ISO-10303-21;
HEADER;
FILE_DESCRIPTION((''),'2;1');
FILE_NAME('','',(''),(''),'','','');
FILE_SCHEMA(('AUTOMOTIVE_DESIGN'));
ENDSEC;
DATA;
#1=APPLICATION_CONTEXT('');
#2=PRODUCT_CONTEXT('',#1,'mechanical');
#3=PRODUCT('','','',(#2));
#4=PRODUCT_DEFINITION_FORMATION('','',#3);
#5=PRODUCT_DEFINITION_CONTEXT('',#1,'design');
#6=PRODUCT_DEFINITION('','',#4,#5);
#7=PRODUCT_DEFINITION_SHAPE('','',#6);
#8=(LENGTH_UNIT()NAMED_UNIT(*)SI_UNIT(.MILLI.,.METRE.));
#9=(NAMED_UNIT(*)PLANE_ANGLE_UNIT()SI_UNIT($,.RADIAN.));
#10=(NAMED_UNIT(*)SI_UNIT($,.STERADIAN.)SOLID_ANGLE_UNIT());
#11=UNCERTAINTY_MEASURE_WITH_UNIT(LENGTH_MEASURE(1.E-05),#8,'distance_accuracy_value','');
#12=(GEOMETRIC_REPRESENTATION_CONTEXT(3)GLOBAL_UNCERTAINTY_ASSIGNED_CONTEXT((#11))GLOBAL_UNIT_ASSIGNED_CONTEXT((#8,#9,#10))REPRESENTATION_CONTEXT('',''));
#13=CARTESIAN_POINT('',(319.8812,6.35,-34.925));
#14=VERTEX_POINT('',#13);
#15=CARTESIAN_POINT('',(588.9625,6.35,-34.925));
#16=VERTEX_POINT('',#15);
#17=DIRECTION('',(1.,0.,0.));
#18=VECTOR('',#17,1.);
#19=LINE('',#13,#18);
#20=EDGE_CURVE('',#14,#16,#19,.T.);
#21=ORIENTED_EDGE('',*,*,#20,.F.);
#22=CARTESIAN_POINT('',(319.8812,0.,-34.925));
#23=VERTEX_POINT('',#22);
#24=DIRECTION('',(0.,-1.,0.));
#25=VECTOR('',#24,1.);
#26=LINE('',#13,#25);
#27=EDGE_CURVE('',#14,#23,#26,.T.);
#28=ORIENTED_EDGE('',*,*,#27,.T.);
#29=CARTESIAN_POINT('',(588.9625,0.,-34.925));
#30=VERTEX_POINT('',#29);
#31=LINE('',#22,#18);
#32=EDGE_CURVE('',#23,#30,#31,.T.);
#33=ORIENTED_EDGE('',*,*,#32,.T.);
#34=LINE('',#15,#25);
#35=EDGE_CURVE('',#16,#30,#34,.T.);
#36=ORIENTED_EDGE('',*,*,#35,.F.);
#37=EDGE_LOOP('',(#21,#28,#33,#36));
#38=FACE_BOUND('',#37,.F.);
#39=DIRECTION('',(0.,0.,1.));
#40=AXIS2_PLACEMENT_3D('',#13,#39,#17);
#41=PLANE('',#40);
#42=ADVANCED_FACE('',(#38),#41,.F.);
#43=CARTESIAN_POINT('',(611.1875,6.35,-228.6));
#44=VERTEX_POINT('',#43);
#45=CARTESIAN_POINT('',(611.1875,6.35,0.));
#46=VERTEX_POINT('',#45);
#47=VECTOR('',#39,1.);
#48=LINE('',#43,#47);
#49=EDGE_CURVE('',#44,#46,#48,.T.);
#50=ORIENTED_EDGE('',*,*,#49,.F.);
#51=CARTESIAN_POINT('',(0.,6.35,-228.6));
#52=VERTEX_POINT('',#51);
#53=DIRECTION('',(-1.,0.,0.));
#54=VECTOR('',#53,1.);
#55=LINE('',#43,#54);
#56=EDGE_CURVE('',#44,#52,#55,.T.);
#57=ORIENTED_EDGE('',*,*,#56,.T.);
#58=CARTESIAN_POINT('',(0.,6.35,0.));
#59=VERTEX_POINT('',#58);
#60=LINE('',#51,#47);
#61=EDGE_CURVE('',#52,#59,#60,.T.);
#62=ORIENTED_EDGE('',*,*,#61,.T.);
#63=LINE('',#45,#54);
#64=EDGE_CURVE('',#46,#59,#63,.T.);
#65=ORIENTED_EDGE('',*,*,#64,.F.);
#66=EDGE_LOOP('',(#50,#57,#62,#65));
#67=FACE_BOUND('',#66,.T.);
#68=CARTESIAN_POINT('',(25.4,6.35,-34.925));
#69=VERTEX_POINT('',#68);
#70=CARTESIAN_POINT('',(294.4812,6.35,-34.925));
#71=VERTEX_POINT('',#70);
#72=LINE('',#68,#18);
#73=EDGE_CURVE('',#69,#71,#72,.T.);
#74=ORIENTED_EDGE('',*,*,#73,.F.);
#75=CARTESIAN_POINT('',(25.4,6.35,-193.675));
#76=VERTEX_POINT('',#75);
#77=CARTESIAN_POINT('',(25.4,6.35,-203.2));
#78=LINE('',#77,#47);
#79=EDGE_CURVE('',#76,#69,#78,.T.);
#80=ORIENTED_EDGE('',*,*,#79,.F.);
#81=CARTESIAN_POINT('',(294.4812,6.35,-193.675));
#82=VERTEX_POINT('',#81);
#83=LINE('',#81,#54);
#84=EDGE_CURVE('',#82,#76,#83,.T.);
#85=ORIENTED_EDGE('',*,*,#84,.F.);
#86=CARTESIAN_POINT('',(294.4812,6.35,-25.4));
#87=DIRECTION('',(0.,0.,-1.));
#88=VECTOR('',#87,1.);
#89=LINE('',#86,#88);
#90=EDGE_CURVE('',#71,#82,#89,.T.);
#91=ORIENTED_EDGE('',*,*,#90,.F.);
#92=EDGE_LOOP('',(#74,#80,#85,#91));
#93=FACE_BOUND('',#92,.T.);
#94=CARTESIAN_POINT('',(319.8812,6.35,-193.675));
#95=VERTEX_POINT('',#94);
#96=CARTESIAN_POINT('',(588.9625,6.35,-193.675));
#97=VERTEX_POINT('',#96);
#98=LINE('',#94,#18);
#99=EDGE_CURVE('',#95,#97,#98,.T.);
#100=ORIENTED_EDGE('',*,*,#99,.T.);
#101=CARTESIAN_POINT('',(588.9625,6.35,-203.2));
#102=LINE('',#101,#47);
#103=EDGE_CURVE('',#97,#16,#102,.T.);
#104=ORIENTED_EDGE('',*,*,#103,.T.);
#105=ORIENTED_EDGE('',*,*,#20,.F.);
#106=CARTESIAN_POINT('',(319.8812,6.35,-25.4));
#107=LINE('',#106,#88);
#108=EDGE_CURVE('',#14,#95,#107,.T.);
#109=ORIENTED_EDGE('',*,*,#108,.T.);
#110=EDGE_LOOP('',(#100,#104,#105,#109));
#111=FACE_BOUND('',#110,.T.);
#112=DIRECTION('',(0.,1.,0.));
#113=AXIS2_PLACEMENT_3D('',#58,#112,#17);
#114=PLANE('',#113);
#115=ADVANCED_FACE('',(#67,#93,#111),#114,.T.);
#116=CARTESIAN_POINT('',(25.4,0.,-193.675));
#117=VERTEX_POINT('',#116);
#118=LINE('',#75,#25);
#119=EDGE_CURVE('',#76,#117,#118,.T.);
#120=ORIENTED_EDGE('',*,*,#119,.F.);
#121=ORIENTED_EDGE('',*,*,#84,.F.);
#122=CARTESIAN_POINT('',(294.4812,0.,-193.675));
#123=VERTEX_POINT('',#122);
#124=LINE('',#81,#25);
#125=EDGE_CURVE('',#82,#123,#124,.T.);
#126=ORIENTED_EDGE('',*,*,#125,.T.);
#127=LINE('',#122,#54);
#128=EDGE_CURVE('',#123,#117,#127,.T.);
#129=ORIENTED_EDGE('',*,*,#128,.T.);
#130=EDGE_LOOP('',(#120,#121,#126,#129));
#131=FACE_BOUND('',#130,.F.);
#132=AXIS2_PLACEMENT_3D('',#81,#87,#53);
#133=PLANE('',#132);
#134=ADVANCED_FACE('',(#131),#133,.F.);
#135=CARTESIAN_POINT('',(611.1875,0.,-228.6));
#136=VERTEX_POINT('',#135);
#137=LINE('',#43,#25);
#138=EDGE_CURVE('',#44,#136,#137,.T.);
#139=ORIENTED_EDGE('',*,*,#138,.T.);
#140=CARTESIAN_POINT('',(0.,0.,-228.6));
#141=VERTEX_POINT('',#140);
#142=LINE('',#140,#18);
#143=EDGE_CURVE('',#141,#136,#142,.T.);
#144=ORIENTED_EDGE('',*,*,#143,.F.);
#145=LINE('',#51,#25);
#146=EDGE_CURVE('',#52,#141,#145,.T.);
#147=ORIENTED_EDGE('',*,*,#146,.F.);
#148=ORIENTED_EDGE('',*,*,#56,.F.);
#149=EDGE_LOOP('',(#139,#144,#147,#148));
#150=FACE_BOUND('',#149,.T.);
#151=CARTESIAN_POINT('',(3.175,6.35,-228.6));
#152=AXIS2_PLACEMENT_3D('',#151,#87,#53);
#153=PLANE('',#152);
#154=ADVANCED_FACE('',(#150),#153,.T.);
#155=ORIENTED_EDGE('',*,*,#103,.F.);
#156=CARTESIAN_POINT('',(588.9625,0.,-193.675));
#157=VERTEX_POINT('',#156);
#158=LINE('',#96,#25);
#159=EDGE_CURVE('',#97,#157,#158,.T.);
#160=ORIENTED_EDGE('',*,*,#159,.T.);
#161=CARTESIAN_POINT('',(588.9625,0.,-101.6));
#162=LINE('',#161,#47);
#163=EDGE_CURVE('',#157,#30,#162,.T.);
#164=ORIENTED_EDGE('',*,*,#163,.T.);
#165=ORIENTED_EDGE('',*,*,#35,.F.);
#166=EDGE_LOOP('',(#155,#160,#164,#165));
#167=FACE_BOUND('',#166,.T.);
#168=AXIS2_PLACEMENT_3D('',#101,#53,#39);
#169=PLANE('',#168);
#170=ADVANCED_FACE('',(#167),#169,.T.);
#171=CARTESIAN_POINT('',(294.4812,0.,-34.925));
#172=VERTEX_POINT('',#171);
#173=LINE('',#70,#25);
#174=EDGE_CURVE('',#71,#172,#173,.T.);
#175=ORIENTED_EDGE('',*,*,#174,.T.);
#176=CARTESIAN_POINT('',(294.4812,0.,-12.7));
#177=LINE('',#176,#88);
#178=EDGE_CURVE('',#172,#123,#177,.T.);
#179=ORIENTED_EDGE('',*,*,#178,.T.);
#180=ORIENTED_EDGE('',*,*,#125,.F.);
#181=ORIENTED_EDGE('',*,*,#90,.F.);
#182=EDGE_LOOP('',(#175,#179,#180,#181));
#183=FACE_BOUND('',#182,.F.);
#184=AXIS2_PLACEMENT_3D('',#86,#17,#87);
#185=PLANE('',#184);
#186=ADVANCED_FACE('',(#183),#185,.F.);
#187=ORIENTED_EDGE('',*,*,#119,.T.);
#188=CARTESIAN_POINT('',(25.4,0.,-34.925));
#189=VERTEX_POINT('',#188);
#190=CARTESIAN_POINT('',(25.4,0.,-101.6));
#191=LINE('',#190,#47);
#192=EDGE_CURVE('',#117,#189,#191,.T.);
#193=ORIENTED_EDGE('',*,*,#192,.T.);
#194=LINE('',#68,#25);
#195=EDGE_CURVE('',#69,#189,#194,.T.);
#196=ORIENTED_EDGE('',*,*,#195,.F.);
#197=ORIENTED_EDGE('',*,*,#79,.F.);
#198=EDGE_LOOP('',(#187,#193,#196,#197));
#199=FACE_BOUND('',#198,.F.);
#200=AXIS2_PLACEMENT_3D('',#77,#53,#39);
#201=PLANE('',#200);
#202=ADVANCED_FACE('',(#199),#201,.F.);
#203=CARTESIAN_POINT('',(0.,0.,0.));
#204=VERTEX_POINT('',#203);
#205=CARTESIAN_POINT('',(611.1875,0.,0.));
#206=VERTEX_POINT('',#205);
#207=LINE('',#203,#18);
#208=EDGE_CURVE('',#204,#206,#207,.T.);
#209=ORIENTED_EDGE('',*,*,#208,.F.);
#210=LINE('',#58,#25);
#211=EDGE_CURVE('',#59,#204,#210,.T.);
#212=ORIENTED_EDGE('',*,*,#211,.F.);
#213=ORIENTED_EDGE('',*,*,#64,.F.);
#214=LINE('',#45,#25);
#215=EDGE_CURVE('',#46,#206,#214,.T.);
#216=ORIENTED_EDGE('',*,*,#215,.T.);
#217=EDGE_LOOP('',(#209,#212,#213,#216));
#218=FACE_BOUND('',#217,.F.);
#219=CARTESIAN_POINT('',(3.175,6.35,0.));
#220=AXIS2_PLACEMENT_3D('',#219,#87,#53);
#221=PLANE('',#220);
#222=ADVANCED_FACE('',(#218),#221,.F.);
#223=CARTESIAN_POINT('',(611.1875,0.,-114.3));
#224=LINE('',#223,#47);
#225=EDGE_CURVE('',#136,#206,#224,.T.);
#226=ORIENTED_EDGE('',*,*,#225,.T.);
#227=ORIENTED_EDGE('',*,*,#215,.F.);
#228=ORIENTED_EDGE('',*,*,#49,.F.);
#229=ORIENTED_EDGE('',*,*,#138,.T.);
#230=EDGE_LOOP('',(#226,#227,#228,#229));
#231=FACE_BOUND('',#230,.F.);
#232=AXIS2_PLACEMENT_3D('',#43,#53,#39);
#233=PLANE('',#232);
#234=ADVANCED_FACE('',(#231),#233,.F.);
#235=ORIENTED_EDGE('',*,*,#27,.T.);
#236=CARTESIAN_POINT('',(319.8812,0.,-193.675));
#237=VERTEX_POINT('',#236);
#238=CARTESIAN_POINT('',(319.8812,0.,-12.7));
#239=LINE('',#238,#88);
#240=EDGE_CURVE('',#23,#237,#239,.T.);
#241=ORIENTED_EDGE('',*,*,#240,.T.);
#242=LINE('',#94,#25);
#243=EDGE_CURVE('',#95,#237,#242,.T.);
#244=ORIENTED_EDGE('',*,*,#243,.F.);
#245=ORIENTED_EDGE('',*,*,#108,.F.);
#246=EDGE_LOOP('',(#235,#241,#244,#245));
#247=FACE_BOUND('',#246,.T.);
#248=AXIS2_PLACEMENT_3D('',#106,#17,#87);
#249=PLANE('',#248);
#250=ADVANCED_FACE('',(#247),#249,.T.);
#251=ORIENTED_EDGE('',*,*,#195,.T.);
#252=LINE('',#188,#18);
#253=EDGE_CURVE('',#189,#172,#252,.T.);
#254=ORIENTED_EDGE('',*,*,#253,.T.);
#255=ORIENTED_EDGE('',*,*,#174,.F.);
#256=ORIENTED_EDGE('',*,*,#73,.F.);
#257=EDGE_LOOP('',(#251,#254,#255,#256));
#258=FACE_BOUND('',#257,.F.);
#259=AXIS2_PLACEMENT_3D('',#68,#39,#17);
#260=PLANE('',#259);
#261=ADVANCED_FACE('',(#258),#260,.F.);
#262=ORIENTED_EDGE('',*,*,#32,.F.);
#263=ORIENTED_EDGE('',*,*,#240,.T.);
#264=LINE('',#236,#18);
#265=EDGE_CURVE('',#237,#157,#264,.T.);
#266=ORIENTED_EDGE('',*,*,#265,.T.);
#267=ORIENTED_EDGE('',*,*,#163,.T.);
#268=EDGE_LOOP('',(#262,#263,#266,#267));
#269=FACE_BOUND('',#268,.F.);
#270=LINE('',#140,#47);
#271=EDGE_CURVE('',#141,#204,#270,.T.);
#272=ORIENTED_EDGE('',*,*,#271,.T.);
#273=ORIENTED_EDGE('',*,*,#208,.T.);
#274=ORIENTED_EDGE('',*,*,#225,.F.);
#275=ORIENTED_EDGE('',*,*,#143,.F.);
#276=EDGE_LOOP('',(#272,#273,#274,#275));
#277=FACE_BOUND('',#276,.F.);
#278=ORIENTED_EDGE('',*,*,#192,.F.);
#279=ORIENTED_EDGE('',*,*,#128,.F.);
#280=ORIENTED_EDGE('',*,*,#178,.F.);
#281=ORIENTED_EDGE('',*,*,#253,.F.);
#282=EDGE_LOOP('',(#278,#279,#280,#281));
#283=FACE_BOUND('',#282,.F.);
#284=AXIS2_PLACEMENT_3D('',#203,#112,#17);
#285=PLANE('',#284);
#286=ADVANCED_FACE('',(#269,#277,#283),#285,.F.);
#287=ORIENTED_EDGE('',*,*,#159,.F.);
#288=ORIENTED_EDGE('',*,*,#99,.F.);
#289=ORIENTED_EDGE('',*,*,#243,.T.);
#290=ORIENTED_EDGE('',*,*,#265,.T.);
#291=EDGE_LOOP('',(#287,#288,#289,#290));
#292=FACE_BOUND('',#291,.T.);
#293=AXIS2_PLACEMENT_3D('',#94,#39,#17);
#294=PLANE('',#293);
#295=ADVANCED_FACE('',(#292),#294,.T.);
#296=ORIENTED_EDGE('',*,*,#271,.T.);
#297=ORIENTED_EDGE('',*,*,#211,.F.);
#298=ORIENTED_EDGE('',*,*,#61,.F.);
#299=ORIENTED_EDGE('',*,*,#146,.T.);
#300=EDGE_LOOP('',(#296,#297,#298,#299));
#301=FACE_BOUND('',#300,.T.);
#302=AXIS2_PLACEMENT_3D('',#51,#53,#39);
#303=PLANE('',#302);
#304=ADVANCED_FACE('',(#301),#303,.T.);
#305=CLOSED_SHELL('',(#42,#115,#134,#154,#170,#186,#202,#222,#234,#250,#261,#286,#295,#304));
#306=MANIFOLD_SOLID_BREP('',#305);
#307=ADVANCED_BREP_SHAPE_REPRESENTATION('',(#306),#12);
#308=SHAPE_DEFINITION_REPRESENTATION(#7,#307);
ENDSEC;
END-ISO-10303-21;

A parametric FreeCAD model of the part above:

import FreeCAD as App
import Part
import Sketcher

V = App.Vector
Q = App.Units.Quantity

doc = App.newDocument("Part")
body = doc.addObject("PartDesign::Body", "Body")

sketch1 = body.newObject("Sketcher::SketchObject", "Sketch")
sketch1.AttachmentSupport = (doc.getObject("XZ_Plane"), [""])
sketch1.MapMode = "FlatFace"
sketch1.addGeometry([
    Part.LineSegment(V(0, -229, 0), V(0, 0, 0)),
    Part.LineSegment(V(0, 0, 0), V(614, 0, 0)),
    Part.LineSegment(V(614, 0, 0), V(614, -229, 0)),
    Part.LineSegment(V(614, -229, 0), V(0, -229, 0)),
], False)
sketch1.addConstraint([
    Sketcher.Constraint("Coincident", 0, 2, 1, 1),
    Sketcher.Constraint("Coincident", 1, 2, 2, 1),
    Sketcher.Constraint("Coincident", 2, 2, 3, 1),
    Sketcher.Constraint("Coincident", 3, 2, 0, 1),
    Sketcher.Constraint("Vertical", 0),
    Sketcher.Constraint("Horizontal", 1),
    Sketcher.Constraint("Vertical", 2),
    Sketcher.Constraint("Horizontal", 3),
    Sketcher.Constraint("Coincident", 0, 2, -1, 1),
    Sketcher.Constraint("DistanceY", 0, 1, 0, 2, Q("9 in")),
    Sketcher.Constraint("DistanceX", 1, 1, 1, 2, Q("24.1875 in")),
])
pad1 = body.newObject("PartDesign::Pad", "Pad")
pad1.Profile = sketch1
pad1.Length = Q("0.25 in")
pad1.Reversed = True

sketch2 = body.newObject("Sketcher::SketchObject", "Sketch001")
sketch2.AttachmentSupport = (doc.getObject("XZ_Plane"), [""])
sketch2.MapMode = "FlatFace"
sketch2.AttachmentOffset = App.Placement(V(0, 0, -0.25 * 25.4), App.Rotation())
sketch2.addGeometry([
    Part.LineSegment(V(25, -203, 0), V(25, -25, 0)),
    Part.LineSegment(V(25, -25, 0), V(294, -25, 0)),
    Part.LineSegment(V(294, -25, 0), V(294, -203, 0)),
    Part.LineSegment(V(294, -203, 0), V(25, -203, 0)),
    Part.LineSegment(V(320, -25, 0), V(589, -25, 0)),
    Part.LineSegment(V(589, -25, 0), V(589, -203, 0)),
    Part.LineSegment(V(589, -203, 0), V(320, -203, 0)),
    Part.LineSegment(V(320, -203, 0), V(320, -25, 0)),
], False)
sketch2.addConstraint([
    Sketcher.Constraint("Coincident", 0, 2, 1, 1),
    Sketcher.Constraint("Coincident", 1, 2, 2, 1),
    Sketcher.Constraint("Coincident", 2, 2, 3, 1),
    Sketcher.Constraint("Coincident", 3, 2, 0, 1),
    Sketcher.Constraint("Coincident", 4, 2, 5, 1),
    Sketcher.Constraint("Coincident", 5, 2, 6, 1),
    Sketcher.Constraint("Coincident", 6, 2, 7, 1),
    Sketcher.Constraint("Coincident", 7, 2, 4, 1),
    Sketcher.Constraint("Vertical", 0),
    Sketcher.Constraint("Horizontal", 1),
    Sketcher.Constraint("Vertical", 2),
    Sketcher.Constraint("Horizontal", 3),
    Sketcher.Constraint("Horizontal", 4),
    Sketcher.Constraint("Vertical", 5),
    Sketcher.Constraint("Horizontal", 6),
    Sketcher.Constraint("Vertical", 7),
    Sketcher.Constraint("Horizontal", 1, 2, 4, 2),
    Sketcher.Constraint("Horizontal", 3, 2, 5, 2),
    Sketcher.Constraint("Equal", 3, 4),
    Sketcher.Constraint("DistanceY", 0, 1, 0, 2, Q("7 in")),
    Sketcher.Constraint("DistanceX", -1, 1, 0, 2, Q("1 in")),
    Sketcher.Constraint("DistanceY", 0, 2, -1, 1, Q("1 in")),
    Sketcher.Constraint("DistanceX", 2, 2, 6, 2, Q("1 in")),
    Sketcher.Constraint("DistanceX", 1, 1, 1, 2, Q("10.593748 in")),
])
pocket1 = body.newObject("PartDesign::Pocket", "Pocket")
pocket1.Profile = sketch2
pocket1.Length = Q("4.625 in")
pocket1.Reversed = True

sketch3 = body.newObject("Sketcher::SketchObject", "Sketch002")
sketch3.AttachmentSupport = (doc.getObject("XZ_Plane"), [""])
sketch3.MapMode = "FlatFace"
sketch3.AttachmentOffset = App.Placement(V(0, 0, -0.25 * 25.4), App.Rotation())
sketch3.addGeometry([
    Part.LineSegment(V(3.2, 0, 0), V(3.2, -228.6, 0)),
    Part.LineSegment(V(3.2, -228.6, 0), V(0, -228.6, 0)),
    Part.LineSegment(V(0, -228.6, 0), V(0, 0, 0)),
    Part.LineSegment(V(0, 0, 0), V(3.2, 0, 0)),
], False)
sketch3.addConstraint([
    Sketcher.Constraint("Coincident", 0, 2, 1, 1),
    Sketcher.Constraint("Coincident", 1, 2, 2, 1),
    Sketcher.Constraint("Coincident", 2, 2, 3, 1),
    Sketcher.Constraint("Coincident", 3, 2, 0, 1),
    Sketcher.Constraint("Vertical", 0),
    Sketcher.Constraint("Horizontal", 1),
    Sketcher.Constraint("Vertical", 2),
    Sketcher.Constraint("Horizontal", 3),
    Sketcher.Constraint("Coincident", 2, 2, -1, 1),
    Sketcher.Constraint("DistanceX", 1, 2, 1, 1, Q("0.125 in")),
    Sketcher.Constraint("DistanceY", 0, 2, 0, 1, Q("9 in")),
])
pocket2 = body.newObject("PartDesign::Pocket", "Pocket001")
pocket2.Profile = sketch3
pocket2.Length = Q("1 in")
pocket2.Reversed = True

sketch4 = body.newObject("Sketcher::SketchObject", "Sketch003")
sketch4.AttachmentSupport = (doc.getObject("XZ_Plane"), [""])
sketch4.MapMode = "FlatFace"
sketch4.AttachmentOffset = App.Placement(V(0, 0, -0.25 * 25.4), App.Rotation())
sketch4.addGeometry([
    Part.LineSegment(V(611.2, -228.6, 0), V(611.2, 0, 0)),
    Part.LineSegment(V(611.2, 0, 0), V(614.4, 0, 0)),
    Part.LineSegment(V(614.4, 0, 0), V(614.4, -228.6, 0)),
    Part.LineSegment(V(614.4, -228.6, 0), V(611.2, -228.6, 0)),
], False)
sketch4.addConstraint([
    Sketcher.Constraint("Coincident", 0, 2, 1, 1),
    Sketcher.Constraint("Coincident", 1, 2, 2, 1),
    Sketcher.Constraint("Coincident", 2, 2, 3, 1),
    Sketcher.Constraint("Coincident", 3, 2, 0, 1),
    Sketcher.Constraint("Vertical", 0),
    Sketcher.Constraint("Horizontal", 1),
    Sketcher.Constraint("Vertical", 2),
    Sketcher.Constraint("Horizontal", 3),
    Sketcher.Constraint("PointOnObject", 0, 2, -1),
    Sketcher.Constraint("DistanceX", 1, 1, 1, 2, Q("0.125 in")),
    Sketcher.Constraint("DistanceY", 0, 1, 0, 2, Q("9 in")),
    Sketcher.Constraint("DistanceX", -1, 1, 0, 2, Q("24.0625 in")),
])
pocket3 = body.newObject("PartDesign::Pocket", "Pocket002")
pocket3.Profile = sketch4
pocket3.Length = Q("1 in")
pocket3.Reversed = True

sketch5 = body.newObject("Sketcher::SketchObject", "Sketch004")
sketch5.AttachmentSupport = (doc.getObject("XZ_Plane"), [""])
sketch5.MapMode = "FlatFace"
sketch5.AttachmentOffset = App.Placement(V(0, 0, -0.25 * 25.4), App.Rotation())
sketch5.addGeometry([
    Part.LineSegment(V(25, -25, 0), V(294, -25, 0)),
    Part.LineSegment(V(294, -25, 0), V(294, -35, 0)),
    Part.LineSegment(V(294, -35, 0), V(25, -35, 0)),
    Part.LineSegment(V(25, -35, 0), V(25, -25, 0)),
    Part.LineSegment(V(25, -194, 0), V(294, -194, 0)),
    Part.LineSegment(V(294, -194, 0), V(294, -203, 0)),
    Part.LineSegment(V(294, -203, 0), V(25, -203, 0)),
    Part.LineSegment(V(25, -203, 0), V(25, -194, 0)),
], False)
sketch5.addConstraint([
    Sketcher.Constraint("Coincident", 0, 2, 1, 1),
    Sketcher.Constraint("Coincident", 1, 2, 2, 1),
    Sketcher.Constraint("Coincident", 2, 2, 3, 1),
    Sketcher.Constraint("Coincident", 3, 2, 0, 1),
    Sketcher.Constraint("Coincident", 4, 2, 5, 1),
    Sketcher.Constraint("Coincident", 5, 2, 6, 1),
    Sketcher.Constraint("Coincident", 6, 2, 7, 1),
    Sketcher.Constraint("Coincident", 7, 2, 4, 1),
    Sketcher.Constraint("Horizontal", 0),
    Sketcher.Constraint("Vertical", 1),
    Sketcher.Constraint("Horizontal", 2),
    Sketcher.Constraint("Vertical", 3),
    Sketcher.Constraint("Horizontal", 4),
    Sketcher.Constraint("Vertical", 5),
    Sketcher.Constraint("Horizontal", 6),
    Sketcher.Constraint("Vertical", 7),
    Sketcher.Constraint("Vertical", 1, 2, 4, 2),
    Sketcher.Constraint("Vertical", 3, 2, 6, 2),
    Sketcher.Constraint("Equal", 3, 5),
    Sketcher.Constraint("DistanceY", 5, 2, 0, 2, Q("7 in")),
    Sketcher.Constraint("DistanceX", 0, 1, 0, 2, Q("10.593748 in")),
    Sketcher.Constraint("DistanceY", 1, 2, 1, 1, Q("0.375 in")),
    Sketcher.Constraint("DistanceY", 0, 2, -1, 1, Q("1 in")),
    Sketcher.Constraint("DistanceX", -1, 1, 2, 2, Q("1 in")),
])
pad2 = body.newObject("PartDesign::Pad", "Pad001")
pad2.Profile = sketch5
pad2.Length = Q("0.25 in")

sketch6 = body.newObject("Sketcher::SketchObject", "Sketch005")
sketch6.AttachmentSupport = (doc.getObject("XZ_Plane"), [""])
sketch6.MapMode = "FlatFace"
sketch6.AttachmentOffset = App.Placement(V(0, 0, -0.25 * 25.4), App.Rotation())
sketch6.addGeometry([
    Part.LineSegment(V(589, -203, 0), V(320, -203, 0)),
    Part.LineSegment(V(320, -203, 0), V(320, -194, 0)),
    Part.LineSegment(V(320, -194, 0), V(589, -194, 0)),
    Part.LineSegment(V(589, -194, 0), V(589, -203, 0)),
    Part.LineSegment(V(589, -35, 0), V(320, -35, 0)),
    Part.LineSegment(V(320, -35, 0), V(320, -25, 0)),
    Part.LineSegment(V(320, -25, 0), V(589, -25, 0)),
    Part.LineSegment(V(589, -25, 0), V(589, -35, 0)),
], False)
sketch6.addConstraint([
    Sketcher.Constraint("Coincident", 0, 2, 1, 1),
    Sketcher.Constraint("Coincident", 1, 2, 2, 1),
    Sketcher.Constraint("Coincident", 2, 2, 3, 1),
    Sketcher.Constraint("Coincident", 3, 2, 0, 1),
    Sketcher.Constraint("Coincident", 4, 2, 5, 1),
    Sketcher.Constraint("Coincident", 5, 2, 6, 1),
    Sketcher.Constraint("Coincident", 6, 2, 7, 1),
    Sketcher.Constraint("Coincident", 7, 2, 4, 1),
    Sketcher.Constraint("Horizontal", 0),
    Sketcher.Constraint("Vertical", 1),
    Sketcher.Constraint("Horizontal", 2),
    Sketcher.Constraint("Vertical", 3),
    Sketcher.Constraint("Horizontal", 4),
    Sketcher.Constraint("Vertical", 5),
    Sketcher.Constraint("Horizontal", 6),
    Sketcher.Constraint("Vertical", 7),
    Sketcher.Constraint("Vertical", 1, 2, 4, 2),
    Sketcher.Constraint("Vertical", 3, 2, 6, 2),
    Sketcher.Constraint("Equal", 3, 5),
    Sketcher.Constraint("DistanceY", 1, 1, 1, 2, Q("0.375 in")),
    Sketcher.Constraint("DistanceY", 0, 2, -1, 1, Q("8 in")),
    Sketcher.Constraint("DistanceY", 5, 2, -1, 1, Q("1 in")),
    Sketcher.Constraint("DistanceX", 0, 2, 0, 1, Q("10.593752 in")),
    Sketcher.Constraint("DistanceX", -1, 1, 0, 2, Q("12.593748 in")),
])
pad3 = body.newObject("PartDesign::Pad", "Pad002")
pad3.Profile = sketch6
pad3.Length = Q("0.25 in")

sketch7 = body.newObject("Sketcher::SketchObject", "Sketch006")
sketch7.AttachmentSupport = (doc.getObject("XZ_Plane"), [""])
sketch7.MapMode = "FlatFace"
sketch7.AttachmentOffset = App.Placement(V(0, 0, -0.25 * 25.4), App.Rotation())
sketch7.addGeometry([
    Part.LineSegment(V(3.2, 0, 0), V(3.2, -228.6, 0)),
    Part.LineSegment(V(3.2, -228.6, 0), V(0, -228.6, 0)),
    Part.LineSegment(V(0, -228.6, 0), V(0, 0, 0)),
    Part.LineSegment(V(0, 0, 0), V(3.2, 0, 0)),
], False)
sketch7.addConstraint([
    Sketcher.Constraint("Coincident", 0, 2, 1, 1),
    Sketcher.Constraint("Coincident", 1, 2, 2, 1),
    Sketcher.Constraint("Coincident", 2, 2, 3, 1),
    Sketcher.Constraint("Coincident", 3, 2, 0, 1),
    Sketcher.Constraint("Vertical", 0),
    Sketcher.Constraint("Horizontal", 1),
    Sketcher.Constraint("Vertical", 2),
    Sketcher.Constraint("Horizontal", 3),
    Sketcher.Constraint("Coincident", 2, 2, -1, 1),
    Sketcher.Constraint("DistanceX", 1, 2, 1, 1, Q("0.125 in")),
    Sketcher.Constraint("DistanceY", 0, 2, 0, 1, Q("9 in")),
])
pad4 = body.newObject("PartDesign::Pad", "Pad003")
pad4.Profile = sketch7
pad4.Length = Q("0.25 in")

doc.recompute()
